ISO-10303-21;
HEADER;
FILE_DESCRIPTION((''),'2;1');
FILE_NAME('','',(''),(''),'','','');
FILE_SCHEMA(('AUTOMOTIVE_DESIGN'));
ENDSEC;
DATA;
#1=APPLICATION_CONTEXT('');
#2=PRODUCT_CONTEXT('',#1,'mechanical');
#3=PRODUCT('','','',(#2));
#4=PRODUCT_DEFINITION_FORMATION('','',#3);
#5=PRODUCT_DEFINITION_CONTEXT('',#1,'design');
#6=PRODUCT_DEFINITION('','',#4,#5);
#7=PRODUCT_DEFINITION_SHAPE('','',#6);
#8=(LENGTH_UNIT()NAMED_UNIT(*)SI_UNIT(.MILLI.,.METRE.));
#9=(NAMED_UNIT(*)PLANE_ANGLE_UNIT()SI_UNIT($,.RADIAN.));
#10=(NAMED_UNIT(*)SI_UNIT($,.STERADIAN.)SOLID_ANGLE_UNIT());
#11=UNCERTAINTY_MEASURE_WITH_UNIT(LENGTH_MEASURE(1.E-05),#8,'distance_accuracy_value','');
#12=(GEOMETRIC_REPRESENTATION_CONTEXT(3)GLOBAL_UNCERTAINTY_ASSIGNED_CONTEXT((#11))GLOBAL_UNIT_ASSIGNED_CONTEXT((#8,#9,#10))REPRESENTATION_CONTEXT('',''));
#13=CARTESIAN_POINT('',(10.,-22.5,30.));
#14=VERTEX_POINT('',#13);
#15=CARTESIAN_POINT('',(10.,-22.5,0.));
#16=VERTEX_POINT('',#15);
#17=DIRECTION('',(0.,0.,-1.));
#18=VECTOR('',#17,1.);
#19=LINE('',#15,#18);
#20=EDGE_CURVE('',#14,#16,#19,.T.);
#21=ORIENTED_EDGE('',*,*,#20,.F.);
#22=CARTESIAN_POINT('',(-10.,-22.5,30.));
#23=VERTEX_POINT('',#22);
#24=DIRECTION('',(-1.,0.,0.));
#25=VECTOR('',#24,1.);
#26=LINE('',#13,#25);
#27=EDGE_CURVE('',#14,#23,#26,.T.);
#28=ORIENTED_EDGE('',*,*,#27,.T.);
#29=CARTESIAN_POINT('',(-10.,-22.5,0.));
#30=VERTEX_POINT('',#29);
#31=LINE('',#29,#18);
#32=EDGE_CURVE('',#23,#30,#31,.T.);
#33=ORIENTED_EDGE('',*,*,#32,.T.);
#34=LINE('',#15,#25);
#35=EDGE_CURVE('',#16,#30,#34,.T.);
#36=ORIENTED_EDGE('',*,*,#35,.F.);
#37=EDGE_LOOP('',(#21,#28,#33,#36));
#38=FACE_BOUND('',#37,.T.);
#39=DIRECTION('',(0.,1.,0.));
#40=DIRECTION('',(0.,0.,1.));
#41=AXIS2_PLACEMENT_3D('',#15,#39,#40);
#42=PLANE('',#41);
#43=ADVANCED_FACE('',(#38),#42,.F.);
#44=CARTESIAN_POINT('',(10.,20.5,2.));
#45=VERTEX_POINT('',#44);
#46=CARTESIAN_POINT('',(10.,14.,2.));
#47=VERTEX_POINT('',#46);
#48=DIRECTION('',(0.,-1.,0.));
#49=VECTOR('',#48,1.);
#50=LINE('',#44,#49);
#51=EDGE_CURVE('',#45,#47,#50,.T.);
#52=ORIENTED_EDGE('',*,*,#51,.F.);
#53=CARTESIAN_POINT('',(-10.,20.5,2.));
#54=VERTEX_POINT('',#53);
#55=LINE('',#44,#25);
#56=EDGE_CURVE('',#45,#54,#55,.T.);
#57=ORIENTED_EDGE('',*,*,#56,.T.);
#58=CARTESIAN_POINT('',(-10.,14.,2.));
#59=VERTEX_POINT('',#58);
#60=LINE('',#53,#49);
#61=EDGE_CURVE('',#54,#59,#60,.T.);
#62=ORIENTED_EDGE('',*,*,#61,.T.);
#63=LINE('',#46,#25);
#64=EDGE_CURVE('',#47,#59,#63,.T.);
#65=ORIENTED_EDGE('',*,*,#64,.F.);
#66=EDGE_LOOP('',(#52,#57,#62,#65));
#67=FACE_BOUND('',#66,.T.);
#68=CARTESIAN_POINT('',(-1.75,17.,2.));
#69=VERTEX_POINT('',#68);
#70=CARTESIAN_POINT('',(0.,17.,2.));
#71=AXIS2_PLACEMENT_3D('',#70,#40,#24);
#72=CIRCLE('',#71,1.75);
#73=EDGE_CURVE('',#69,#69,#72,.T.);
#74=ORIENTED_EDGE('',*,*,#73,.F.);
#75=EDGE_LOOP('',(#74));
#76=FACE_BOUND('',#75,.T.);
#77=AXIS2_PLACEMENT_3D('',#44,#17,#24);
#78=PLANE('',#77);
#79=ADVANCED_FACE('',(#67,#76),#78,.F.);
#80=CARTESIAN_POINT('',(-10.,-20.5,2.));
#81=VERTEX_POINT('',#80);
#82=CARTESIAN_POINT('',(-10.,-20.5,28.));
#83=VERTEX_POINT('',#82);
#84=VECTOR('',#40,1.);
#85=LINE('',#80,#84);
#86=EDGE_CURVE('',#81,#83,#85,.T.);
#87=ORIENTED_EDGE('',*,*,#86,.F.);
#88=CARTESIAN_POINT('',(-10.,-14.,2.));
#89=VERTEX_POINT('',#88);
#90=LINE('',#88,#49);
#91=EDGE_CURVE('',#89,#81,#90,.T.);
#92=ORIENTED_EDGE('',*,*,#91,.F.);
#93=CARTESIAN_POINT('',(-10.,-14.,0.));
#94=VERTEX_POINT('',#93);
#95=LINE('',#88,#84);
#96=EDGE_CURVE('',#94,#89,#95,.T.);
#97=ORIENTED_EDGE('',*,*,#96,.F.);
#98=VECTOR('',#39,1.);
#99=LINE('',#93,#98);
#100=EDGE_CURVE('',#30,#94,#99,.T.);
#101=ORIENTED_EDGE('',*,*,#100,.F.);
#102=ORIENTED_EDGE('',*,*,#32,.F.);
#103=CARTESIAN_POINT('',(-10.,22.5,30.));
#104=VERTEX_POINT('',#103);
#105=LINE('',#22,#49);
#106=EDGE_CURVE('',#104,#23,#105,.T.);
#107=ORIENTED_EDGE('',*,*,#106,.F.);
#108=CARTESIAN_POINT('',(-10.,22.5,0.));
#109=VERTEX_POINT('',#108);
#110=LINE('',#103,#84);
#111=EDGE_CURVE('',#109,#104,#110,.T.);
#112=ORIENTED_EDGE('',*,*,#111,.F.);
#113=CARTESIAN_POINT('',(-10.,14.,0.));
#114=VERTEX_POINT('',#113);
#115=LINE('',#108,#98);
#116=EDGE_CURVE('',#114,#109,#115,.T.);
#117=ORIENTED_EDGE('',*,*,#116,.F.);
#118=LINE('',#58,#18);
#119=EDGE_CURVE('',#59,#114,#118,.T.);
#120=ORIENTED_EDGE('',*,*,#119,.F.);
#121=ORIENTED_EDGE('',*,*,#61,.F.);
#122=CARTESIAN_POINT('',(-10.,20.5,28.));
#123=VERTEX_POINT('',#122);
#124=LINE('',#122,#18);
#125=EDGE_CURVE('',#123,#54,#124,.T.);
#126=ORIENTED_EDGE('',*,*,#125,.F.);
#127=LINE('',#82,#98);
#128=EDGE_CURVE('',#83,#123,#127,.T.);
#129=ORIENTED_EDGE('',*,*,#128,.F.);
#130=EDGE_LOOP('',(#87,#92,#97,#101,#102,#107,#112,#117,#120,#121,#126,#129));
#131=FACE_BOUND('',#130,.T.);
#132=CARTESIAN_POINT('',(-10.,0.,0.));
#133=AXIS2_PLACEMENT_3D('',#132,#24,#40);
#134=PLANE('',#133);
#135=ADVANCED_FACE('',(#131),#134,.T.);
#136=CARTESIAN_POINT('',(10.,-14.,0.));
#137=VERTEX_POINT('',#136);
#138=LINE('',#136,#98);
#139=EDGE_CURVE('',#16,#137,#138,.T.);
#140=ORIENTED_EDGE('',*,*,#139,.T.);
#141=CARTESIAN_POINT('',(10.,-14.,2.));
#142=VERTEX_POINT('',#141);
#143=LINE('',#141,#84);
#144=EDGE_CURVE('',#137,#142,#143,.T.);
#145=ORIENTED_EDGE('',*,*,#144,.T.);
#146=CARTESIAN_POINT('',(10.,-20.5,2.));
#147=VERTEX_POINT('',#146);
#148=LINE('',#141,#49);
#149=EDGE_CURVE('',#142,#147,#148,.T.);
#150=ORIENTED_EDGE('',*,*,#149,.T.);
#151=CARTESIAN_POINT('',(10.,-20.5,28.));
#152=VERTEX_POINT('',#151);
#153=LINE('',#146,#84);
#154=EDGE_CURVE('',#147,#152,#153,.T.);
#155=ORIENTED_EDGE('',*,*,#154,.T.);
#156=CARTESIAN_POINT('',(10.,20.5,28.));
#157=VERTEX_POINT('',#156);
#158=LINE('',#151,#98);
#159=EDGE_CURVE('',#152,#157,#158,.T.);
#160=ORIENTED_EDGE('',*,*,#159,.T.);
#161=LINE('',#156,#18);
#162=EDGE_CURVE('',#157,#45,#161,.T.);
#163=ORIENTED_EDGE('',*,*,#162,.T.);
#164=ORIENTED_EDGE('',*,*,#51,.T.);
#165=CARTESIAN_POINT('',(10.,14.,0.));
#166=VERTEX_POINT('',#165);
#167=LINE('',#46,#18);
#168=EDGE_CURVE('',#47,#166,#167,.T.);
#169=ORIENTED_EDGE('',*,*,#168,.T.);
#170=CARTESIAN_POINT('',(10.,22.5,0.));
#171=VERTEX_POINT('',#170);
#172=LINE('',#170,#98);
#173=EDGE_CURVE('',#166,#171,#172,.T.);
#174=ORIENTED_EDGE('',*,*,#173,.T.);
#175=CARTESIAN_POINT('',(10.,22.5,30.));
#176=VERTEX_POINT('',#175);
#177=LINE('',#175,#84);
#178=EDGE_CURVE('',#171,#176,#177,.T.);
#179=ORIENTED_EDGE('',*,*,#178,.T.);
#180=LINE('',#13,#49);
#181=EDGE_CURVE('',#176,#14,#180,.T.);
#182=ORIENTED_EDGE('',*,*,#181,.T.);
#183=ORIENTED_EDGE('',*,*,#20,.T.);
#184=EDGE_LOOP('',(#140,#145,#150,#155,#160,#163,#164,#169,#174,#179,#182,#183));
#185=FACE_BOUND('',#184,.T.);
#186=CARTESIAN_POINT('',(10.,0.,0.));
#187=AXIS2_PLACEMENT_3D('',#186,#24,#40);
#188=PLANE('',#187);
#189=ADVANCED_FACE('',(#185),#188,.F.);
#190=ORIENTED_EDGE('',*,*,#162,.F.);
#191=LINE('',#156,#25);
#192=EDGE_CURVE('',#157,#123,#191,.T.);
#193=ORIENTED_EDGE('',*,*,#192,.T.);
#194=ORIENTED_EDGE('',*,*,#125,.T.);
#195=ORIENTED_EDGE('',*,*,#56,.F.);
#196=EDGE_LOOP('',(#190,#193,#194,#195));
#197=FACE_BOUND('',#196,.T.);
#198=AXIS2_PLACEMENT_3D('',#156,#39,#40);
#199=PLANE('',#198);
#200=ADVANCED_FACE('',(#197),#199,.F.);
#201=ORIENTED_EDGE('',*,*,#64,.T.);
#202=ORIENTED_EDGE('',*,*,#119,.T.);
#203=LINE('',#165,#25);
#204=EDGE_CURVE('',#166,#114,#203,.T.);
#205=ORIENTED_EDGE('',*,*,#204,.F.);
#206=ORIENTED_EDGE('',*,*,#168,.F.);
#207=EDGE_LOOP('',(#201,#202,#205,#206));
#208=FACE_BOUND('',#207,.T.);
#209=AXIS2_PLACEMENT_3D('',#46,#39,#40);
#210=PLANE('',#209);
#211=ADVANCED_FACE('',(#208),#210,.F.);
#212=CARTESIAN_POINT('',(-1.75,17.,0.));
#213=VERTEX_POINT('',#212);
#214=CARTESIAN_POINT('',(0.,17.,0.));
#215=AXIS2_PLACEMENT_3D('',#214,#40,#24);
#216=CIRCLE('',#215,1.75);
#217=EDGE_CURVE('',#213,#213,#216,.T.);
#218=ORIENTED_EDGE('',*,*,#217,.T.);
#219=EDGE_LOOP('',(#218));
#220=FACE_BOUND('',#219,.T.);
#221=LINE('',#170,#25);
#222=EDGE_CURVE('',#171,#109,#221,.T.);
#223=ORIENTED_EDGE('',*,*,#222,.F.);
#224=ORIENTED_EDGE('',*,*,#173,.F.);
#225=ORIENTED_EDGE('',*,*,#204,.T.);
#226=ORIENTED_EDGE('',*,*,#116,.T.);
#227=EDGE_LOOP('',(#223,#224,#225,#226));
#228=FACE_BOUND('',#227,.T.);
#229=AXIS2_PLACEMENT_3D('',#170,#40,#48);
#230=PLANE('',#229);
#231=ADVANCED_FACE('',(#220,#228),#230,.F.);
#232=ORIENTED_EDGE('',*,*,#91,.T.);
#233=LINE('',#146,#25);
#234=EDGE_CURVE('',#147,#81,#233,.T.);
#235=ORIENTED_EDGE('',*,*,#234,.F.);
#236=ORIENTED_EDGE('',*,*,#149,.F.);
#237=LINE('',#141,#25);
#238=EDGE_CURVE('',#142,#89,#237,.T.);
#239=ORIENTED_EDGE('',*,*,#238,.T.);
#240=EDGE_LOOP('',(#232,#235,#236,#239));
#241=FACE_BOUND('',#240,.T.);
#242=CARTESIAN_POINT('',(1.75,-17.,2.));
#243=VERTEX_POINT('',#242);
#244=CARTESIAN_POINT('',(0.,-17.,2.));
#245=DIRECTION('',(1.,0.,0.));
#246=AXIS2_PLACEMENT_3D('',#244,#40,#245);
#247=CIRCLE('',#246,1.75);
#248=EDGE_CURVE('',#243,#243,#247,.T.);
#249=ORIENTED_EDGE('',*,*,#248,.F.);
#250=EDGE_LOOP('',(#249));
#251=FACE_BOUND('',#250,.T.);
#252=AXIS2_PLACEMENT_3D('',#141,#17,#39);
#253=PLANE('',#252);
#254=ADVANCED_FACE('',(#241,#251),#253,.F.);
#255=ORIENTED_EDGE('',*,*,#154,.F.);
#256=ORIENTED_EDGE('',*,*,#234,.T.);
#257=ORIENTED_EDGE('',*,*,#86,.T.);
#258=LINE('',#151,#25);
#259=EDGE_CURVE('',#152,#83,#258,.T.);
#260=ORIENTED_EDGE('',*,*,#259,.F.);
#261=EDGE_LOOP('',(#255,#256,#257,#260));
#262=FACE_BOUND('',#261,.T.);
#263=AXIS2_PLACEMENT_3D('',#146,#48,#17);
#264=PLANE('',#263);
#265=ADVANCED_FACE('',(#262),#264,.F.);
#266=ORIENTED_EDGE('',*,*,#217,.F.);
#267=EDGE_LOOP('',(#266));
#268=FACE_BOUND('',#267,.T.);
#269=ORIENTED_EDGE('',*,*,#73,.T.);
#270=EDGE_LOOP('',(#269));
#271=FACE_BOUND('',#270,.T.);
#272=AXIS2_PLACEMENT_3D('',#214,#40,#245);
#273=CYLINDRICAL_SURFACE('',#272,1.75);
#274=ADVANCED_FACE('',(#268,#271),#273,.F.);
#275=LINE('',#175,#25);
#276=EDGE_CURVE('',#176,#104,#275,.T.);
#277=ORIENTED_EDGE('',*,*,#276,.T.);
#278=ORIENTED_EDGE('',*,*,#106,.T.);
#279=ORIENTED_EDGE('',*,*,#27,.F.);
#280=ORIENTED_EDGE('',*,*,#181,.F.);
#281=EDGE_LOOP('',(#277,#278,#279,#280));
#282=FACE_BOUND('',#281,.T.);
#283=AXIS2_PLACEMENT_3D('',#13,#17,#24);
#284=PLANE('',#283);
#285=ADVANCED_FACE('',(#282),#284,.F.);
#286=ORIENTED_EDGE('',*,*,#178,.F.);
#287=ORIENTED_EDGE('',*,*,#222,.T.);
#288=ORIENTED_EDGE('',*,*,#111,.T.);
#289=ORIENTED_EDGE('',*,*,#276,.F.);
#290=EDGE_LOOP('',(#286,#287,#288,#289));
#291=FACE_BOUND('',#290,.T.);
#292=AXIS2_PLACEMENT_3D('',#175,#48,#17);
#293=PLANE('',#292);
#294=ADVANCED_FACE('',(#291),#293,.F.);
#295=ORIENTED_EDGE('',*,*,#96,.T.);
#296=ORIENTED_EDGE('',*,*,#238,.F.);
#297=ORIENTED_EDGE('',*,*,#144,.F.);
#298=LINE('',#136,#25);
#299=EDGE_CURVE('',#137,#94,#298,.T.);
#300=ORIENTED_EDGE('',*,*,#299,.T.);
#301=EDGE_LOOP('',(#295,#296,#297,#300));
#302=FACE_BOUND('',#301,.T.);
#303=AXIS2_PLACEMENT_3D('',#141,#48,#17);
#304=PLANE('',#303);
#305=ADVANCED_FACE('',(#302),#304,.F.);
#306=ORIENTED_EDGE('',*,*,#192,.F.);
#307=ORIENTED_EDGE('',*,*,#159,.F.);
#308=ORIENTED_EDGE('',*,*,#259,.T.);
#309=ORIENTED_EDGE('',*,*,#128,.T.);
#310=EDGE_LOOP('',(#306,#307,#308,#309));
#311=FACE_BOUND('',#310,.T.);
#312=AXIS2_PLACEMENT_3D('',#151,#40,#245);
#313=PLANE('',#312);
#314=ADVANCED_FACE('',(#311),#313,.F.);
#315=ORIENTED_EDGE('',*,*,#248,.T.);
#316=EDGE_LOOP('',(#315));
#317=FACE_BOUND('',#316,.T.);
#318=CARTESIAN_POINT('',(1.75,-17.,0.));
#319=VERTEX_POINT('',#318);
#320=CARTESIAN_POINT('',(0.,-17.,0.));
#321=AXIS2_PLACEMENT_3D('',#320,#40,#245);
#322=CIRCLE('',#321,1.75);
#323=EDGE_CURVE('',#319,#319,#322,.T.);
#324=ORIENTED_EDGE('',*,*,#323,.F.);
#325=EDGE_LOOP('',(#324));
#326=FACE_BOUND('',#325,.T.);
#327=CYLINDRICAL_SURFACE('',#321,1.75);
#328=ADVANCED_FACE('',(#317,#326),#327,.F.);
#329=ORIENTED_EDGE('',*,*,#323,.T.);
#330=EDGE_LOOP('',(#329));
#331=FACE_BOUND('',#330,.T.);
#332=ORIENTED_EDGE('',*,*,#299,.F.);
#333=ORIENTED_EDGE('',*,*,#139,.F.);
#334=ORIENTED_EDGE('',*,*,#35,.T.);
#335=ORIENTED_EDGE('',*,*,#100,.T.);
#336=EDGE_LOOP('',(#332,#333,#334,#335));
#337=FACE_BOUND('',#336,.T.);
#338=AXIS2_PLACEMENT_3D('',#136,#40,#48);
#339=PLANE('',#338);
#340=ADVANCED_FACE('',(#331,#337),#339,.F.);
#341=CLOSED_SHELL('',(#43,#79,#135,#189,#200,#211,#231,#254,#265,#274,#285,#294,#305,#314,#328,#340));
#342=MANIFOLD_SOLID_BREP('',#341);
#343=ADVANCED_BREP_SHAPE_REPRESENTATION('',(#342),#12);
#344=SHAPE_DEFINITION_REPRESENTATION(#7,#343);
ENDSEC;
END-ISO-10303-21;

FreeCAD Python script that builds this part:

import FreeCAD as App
import Part
import Sketcher
from FreeCAD import Vector
Q = App.Units.Quantity


def add_polygon(sketch, points):
    """Adds a closed chain of lines whose ends are joined by coincident constraints."""
    first, n = sketch.GeometryCount, len(points)
    for a, b in zip(points, points[1:] + points[:1]):
        sketch.addGeometry(Part.LineSegment(App.Vector(*a, 0), App.Vector(*b, 0)), False)
    for i in range(n):
        sketch.addConstraint(Sketcher.Constraint("Coincident", first + i, 2, first + (i + 1) % n, 1))

doc = App.newDocument("Part")
params = doc.addObject("Spreadsheet::Sheet", "Params")
for row, (alias, value) in enumerate([
    ("sketch1_width", "41 mm"),
    ("sketch1_width2", "45 mm"),
    ("sketch1_height", "2 mm"),
    ("sketch1_height2", "26 mm"),
    ("sketch1_height3", "30 mm"),
    ("pad1_length", "20 mm"),
    ("sketch2_diameter", "3.5 mm"),
], start=1):
    params.set(f"A{row}", alias)
    params.set(f"B{row}", "=" + value)
    params.setAlias(f"B{row}", alias)

body = doc.addObject("PartDesign::Body", "Body")

# Sketch on YZ plane
sketch1 = doc.addObject("Sketcher::SketchObject", "Sketch")
body.addObject(sketch1)
sketch1.AttachmentSupport = (doc.YZ_Plane, [""])
sketch1.MapMode = "FlatFace"
add_polygon(sketch1, [(-22.5, 0), (-14, 0), (-14, 2), (-20.5, 2), (-20.5, 28), (20.5, 28), (20.5, 2), (14, 2), (14, 0), (22.5, 0), (22.5, 30), (-22.5, 30)])  # lines 0-11
sketch1.addConstraint(Sketcher.Constraint("Horizontal", 0))
sketch1.addConstraint(Sketcher.Constraint("Vertical", 1))
sketch1.addConstraint(Sketcher.Constraint("Horizontal", 2))
sketch1.addConstraint(Sketcher.Constraint("Vertical", 3))
sketch1.addConstraint(Sketcher.Constraint("Horizontal", 4))
sketch1.addConstraint(Sketcher.Constraint("Vertical", 5))
sketch1.addConstraint(Sketcher.Constraint("Horizontal", 6))
sketch1.addConstraint(Sketcher.Constraint("Vertical", 7))
sketch1.addConstraint(Sketcher.Constraint("Horizontal", 8))
sketch1.addConstraint(Sketcher.Constraint("Vertical", 9))
sketch1.addConstraint(Sketcher.Constraint("Horizontal", 10))
sketch1.addConstraint(Sketcher.Constraint("Vertical", 11))
sketch1.addConstraint(Sketcher.Constraint("Symmetric", 0, 2, 7, 2, -1, 1))
sketch1.addConstraint(Sketcher.Constraint("Symmetric", 2, 2, 5, 2, -2))
sketch1.addConstraint(Sketcher.Constraint("Symmetric", 8, 2, 11, 2, -2))
sketch1.addConstraint(Sketcher.Constraint("DistanceX", 4, 1, 4, 2, Q("41 mm")))
sketch1.addConstraint(Sketcher.Constraint("DistanceX", 10, 2, 10, 1, Q("45 mm")))
sketch1.addConstraint(Sketcher.Constraint("DistanceY", 1, 1, 1, 2, Q("2 mm")))
sketch1.addConstraint(Sketcher.Constraint("DistanceY", 3, 1, 3, 2, Q("26 mm")))
sketch1.addConstraint(Sketcher.Constraint("DistanceY", 9, 1, 9, 2, Q("30 mm")))
sketch1.addConstraint(Sketcher.Constraint("DistanceX", 0, 1, 0, 2, Q("8.5 mm")))
sketch1.setExpression("Constraints[27]", "Params.sketch1_width")
sketch1.setExpression("Constraints[28]", "Params.sketch1_width2")
sketch1.setExpression("Constraints[29]", "Params.sketch1_height")
sketch1.setExpression("Constraints[30]", "Params.sketch1_height2")
sketch1.setExpression("Constraints[31]", "Params.sketch1_height3")
pad1 = doc.addObject("PartDesign::Pad", "Pad")
body.addObject(pad1)
pad1.Profile = sketch1
pad1.setExpression("Length", "Params.pad1_length")
pad1.Midplane = True

# Sketch on XY plane
sketch2 = doc.addObject("Sketcher::SketchObject", "Sketch001")
body.addObject(sketch2)
sketch2.AttachmentSupport = (doc.XY_Plane, [""])
sketch2.MapMode = "FlatFace"
sketch2.AttachmentOffset = App.Placement(Vector(0, 0, 2), App.Rotation())
sketch2.addGeometry(Part.Circle(Vector(0, -17, 0), Vector(0, 0, 1), 1.8), False)
sketch2.addGeometry(Part.Circle(Vector(0, 17, 0), Vector(0, 0, 1), 1.8), False)
sketch2.addConstraint(Sketcher.Constraint("Equal", 0, 1))
sketch2.addConstraint(Sketcher.Constraint("Symmetric", 0, 3, 1, 3, -1, 1))
sketch2.addConstraint(Sketcher.Constraint("PointOnObject", 0, 3, -2))
sketch2.addConstraint(Sketcher.Constraint("Diameter", 0, Q("3.5 mm")))
sketch2.addConstraint(Sketcher.Constraint("DistanceY", 0, 3, -1, 1, Q("17 mm")))
sketch2.setExpression("Constraints[3]", "Params.sketch2_diameter")
pocket1 = doc.addObject("PartDesign::Pocket", "Pocket")
body.addObject(pocket1)
pocket1.Profile = sketch2
pocket1.Type = "ThroughAll"

doc.recompute()
